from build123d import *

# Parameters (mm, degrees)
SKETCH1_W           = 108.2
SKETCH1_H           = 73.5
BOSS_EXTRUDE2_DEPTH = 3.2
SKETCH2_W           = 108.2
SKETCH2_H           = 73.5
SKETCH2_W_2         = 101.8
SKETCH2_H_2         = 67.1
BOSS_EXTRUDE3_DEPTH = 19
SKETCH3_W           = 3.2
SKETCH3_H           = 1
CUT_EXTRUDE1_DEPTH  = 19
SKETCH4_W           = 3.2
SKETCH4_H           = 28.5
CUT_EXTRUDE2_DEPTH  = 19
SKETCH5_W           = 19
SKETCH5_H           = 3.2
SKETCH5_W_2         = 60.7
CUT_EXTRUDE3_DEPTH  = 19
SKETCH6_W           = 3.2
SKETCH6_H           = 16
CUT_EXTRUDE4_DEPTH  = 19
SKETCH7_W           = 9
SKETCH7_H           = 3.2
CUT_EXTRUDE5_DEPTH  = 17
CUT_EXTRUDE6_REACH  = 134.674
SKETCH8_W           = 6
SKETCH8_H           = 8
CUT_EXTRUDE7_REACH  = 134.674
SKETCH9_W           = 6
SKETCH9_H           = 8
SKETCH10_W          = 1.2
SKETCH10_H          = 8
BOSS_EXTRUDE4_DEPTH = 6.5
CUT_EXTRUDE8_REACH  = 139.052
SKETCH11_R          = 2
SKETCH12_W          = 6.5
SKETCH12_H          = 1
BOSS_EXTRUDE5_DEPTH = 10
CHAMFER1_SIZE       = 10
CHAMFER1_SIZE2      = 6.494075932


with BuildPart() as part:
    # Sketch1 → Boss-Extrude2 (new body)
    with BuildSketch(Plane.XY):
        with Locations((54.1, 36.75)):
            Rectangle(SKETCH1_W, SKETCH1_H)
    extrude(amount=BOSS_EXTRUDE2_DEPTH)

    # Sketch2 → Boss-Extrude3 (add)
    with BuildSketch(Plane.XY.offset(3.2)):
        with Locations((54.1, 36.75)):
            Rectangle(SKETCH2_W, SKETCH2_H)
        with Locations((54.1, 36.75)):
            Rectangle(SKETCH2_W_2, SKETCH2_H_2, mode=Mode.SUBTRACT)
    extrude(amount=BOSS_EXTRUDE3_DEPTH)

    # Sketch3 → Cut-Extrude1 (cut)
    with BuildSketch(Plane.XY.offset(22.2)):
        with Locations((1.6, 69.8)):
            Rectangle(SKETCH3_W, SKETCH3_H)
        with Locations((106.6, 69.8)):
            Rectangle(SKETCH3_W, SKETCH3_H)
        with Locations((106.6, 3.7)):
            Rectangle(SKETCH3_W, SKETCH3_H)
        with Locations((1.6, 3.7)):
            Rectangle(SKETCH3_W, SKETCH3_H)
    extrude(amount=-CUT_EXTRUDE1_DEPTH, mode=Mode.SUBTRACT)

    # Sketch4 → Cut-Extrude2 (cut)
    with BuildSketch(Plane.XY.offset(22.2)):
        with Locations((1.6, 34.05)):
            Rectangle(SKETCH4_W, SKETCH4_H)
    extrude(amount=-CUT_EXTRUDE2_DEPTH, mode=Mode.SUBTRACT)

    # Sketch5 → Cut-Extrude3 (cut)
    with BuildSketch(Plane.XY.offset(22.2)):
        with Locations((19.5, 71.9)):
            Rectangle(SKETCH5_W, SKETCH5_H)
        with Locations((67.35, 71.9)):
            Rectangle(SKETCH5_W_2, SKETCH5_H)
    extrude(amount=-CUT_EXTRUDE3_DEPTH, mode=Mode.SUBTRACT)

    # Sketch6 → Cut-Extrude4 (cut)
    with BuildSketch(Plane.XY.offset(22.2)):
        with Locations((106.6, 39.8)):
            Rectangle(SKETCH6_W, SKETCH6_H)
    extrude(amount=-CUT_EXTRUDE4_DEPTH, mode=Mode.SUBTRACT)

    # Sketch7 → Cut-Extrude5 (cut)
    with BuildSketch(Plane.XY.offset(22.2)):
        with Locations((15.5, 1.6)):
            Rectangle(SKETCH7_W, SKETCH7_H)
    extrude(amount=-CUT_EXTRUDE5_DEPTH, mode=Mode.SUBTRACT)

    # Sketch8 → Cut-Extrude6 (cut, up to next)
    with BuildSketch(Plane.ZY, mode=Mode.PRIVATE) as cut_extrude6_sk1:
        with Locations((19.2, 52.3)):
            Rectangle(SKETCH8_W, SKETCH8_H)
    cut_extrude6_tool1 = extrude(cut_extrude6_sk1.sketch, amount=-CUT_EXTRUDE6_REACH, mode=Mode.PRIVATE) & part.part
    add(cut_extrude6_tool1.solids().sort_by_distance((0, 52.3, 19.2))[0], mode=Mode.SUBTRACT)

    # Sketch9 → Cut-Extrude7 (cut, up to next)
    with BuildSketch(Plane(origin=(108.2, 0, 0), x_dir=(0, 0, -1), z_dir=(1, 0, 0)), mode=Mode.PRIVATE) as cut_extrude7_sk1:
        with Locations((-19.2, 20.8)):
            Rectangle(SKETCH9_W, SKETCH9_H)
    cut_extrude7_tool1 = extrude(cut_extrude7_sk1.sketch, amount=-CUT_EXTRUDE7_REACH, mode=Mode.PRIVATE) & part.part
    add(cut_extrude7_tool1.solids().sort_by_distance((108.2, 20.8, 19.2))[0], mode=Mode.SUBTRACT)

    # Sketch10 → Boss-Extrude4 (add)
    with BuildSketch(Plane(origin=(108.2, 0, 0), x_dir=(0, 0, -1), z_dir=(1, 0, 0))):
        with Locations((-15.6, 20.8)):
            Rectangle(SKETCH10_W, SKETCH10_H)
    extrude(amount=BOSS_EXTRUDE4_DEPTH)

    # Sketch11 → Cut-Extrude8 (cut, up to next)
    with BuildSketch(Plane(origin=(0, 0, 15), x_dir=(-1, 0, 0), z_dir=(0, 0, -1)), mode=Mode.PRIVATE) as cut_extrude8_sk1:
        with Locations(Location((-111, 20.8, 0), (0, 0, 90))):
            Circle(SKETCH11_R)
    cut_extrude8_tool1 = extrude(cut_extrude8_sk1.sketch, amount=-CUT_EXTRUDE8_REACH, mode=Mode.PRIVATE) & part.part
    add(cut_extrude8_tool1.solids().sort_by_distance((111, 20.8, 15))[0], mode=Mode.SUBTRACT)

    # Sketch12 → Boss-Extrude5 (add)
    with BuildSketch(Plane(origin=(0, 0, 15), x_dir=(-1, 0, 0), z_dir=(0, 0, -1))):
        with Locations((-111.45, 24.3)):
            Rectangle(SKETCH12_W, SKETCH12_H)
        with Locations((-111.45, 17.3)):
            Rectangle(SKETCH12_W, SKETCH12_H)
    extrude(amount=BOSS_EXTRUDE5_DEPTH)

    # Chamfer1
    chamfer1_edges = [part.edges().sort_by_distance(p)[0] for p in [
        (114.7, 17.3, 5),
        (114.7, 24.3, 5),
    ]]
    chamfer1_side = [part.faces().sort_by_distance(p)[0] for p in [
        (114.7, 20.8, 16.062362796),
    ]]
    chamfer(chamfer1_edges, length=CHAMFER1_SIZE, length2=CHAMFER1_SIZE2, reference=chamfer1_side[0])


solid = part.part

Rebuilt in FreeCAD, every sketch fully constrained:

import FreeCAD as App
import Part
import Sketcher
from FreeCAD import Vector


def edges_at(feature, points):
    """Names of the edges that pass closest to the given points."""
    edges = feature.Shape.Edges
    near = lambda p: min(range(len(edges)), key=lambda i: edges[i].distToShape(Part.Vertex(*p))[0])
    return sorted({f"Edge{near(p) + 1}" for p in points})

doc = App.newDocument("Part")
body = doc.addObject("PartDesign::Body", "Body")

# Sketch on XY plane
sketch1 = doc.addObject("Sketcher::SketchObject", "Sketch")
body.addObject(sketch1)
sketch1.AttachmentSupport = (doc.XY_Plane, [""])
sketch1.MapMode = "FlatFace"
sketch1.addGeometry(Part.LineSegment(Vector(0, 73.5, 0), Vector(0, 0, 0)), False)
sketch1.addGeometry(Part.LineSegment(Vector(0, 0, 0), Vector(108.2, 0, 0)), False)
sketch1.addGeometry(Part.LineSegment(Vector(108.2, 0, 0), Vector(108.2, 73.5, 0)), False)
sketch1.addGeometry(Part.LineSegment(Vector(108.2, 73.5, 0), Vector(0, 73.5, 0)), False)
sketch1.addConstraint(Sketcher.Constraint("Coincident", 0, 2, 1, 1))
sketch1.addConstraint(Sketcher.Constraint("Coincident", 1, 2, 2, 1))
sketch1.addConstraint(Sketcher.Constraint("Coincident", 2, 2, 3, 1))
sketch1.addConstraint(Sketcher.Constraint("Coincident", 3, 2, 0, 1))
sketch1.addConstraint(Sketcher.Constraint("Vertical", 0))
sketch1.addConstraint(Sketcher.Constraint("Horizontal", 1))
sketch1.addConstraint(Sketcher.Constraint("Vertical", 2))
sketch1.addConstraint(Sketcher.Constraint("Horizontal", 3))
sketch1.addConstraint(Sketcher.Constraint("Coincident", 0, 2, -1, 1))
sketch1.addConstraint(Sketcher.Constraint("DistanceX", 1, 1, 1, 2, 108.2))
sketch1.addConstraint(Sketcher.Constraint("DistanceY", 0, 2, 0, 1, 73.5))
pad1 = doc.addObject("PartDesign::Pad", "Pad")
body.addObject(pad1)
pad1.Profile = sketch1
pad1.Length = 3.2

# Sketch on XY plane
sketch2 = doc.addObject("Sketcher::SketchObject", "Sketch001")
body.addObject(sketch2)
sketch2.AttachmentSupport = (doc.XY_Plane, [""])
sketch2.MapMode = "FlatFace"
sketch2.AttachmentOffset = App.Placement(Vector(0, 0, 3.2), App.Rotation())
sketch2.addGeometry(Part.LineSegment(Vector(0, 73.5, 0), Vector(0, 0, 0)), False)
sketch2.addGeometry(Part.LineSegment(Vector(0, 0, 0), Vector(108.2, 0, 0)), False)
sketch2.addGeometry(Part.LineSegment(Vector(108.2, 0, 0), Vector(108.2, 73.5, 0)), False)
sketch2.addGeometry(Part.LineSegment(Vector(108.2, 73.5, 0), Vector(0, 73.5, 0)), False)
sketch2.addGeometry(Part.LineSegment(Vector(105, 3.2, 0), Vector(3.2, 3.2, 0)), False)
sketch2.addGeometry(Part.LineSegment(Vector(3.2, 3.2, 0), Vector(3.2, 70.3, 0)), False)
sketch2.addGeometry(Part.LineSegment(Vector(3.2, 70.3, 0), Vector(105, 70.3, 0)), False)
sketch2.addGeometry(Part.LineSegment(Vector(105, 70.3, 0), Vector(105, 3.2, 0)), False)
sketch2.addConstraint(Sketcher.Constraint("Coincident", 0, 2, 1, 1))
sketch2.addConstraint(Sketcher.Constraint("Coincident", 1, 2, 2, 1))
sketch2.addConstraint(Sketcher.Constraint("Coincident", 2, 2, 3, 1))
sketch2.addConstraint(Sketcher.Constraint("Coincident", 3, 2, 0, 1))
sketch2.addConstraint(Sketcher.Constraint("Coincident", 4, 2, 5, 1))
sketch2.addConstraint(Sketcher.Constraint("Coincident", 5, 2, 6, 1))
sketch2.addConstraint(Sketcher.Constraint("Coincident", 6, 2, 7, 1))
sketch2.addConstraint(Sketcher.Constraint("Coincident", 7, 2, 4, 1))
sketch2.addConstraint(Sketcher.Constraint("Vertical", 0))
sketch2.addConstraint(Sketcher.Constraint("Horizontal", 1))
sketch2.addConstraint(Sketcher.Constraint("Vertical", 2))
sketch2.addConstraint(Sketcher.Constraint("Horizontal", 3))
sketch2.addConstraint(Sketcher.Constraint("Horizontal", 4))
sketch2.addConstraint(Sketcher.Constraint("Vertical", 5))
sketch2.addConstraint(Sketcher.Constraint("Horizontal", 6))
sketch2.addConstraint(Sketcher.Constraint("Vertical", 7))
sketch2.addConstraint(Sketcher.Constraint("Coincident", 0, 2, -1, 1))
sketch2.addConstraint(Sketcher.Constraint("DistanceX", 1, 1, 1, 2, 108.2))
sketch2.addConstraint(Sketcher.Constraint("DistanceX", 4, 2, 4, 1, 101.8))
sketch2.addConstraint(Sketcher.Constraint("DistanceY", 0, 2, 0, 1, 73.5))
sketch2.addConstraint(Sketcher.Constraint("DistanceY", 5, 1, 5, 2, 67.1))
sketch2.addConstraint(Sketcher.Constraint("DistanceX", -1, 1, 6, 2, 105.0))
sketch2.addConstraint(Sketcher.Constraint("DistanceY", -1, 1, 4, 2, 3.2))
pad2 = doc.addObject("PartDesign::Pad", "Pad001")
body.addObject(pad2)
pad2.Profile = sketch2
pad2.Length = 19

# Sketch on XY plane
sketch3 = doc.addObject("Sketcher::SketchObject", "Sketch002")
body.addObject(sketch3)
sketch3.AttachmentSupport = (doc.XY_Plane, [""])
sketch3.MapMode = "FlatFace"
sketch3.AttachmentOffset = App.Placement(Vector(0, 0, 22.2), App.Rotation())
sketch3.addGeometry(Part.LineSegment(Vector(0, 70.3, 0), Vector(0, 69.3, 0)), False)
sketch3.addGeometry(Part.LineSegment(Vector(0, 69.3, 0), Vector(3.2, 69.3, 0)), False)
sketch3.addGeometry(Part.LineSegment(Vector(3.2, 69.3, 0), Vector(3.2, 70.3, 0)), False)
sketch3.addGeometry(Part.LineSegment(Vector(3.2, 70.3, 0), Vector(0, 70.3, 0)), False)
sketch3.addGeometry(Part.LineSegment(Vector(105, 70.3, 0), Vector(105, 69.3, 0)), False)
sketch3.addGeometry(Part.LineSegment(Vector(105, 69.3, 0), Vector(108.2, 69.3, 0)), False)
sketch3.addGeometry(Part.LineSegment(Vector(108.2, 69.3, 0), Vector(108.2, 70.3, 0)), False)
sketch3.addGeometry(Part.LineSegment(Vector(108.2, 70.3, 0), Vector(105, 70.3, 0)), False)
sketch3.addGeometry(Part.LineSegment(Vector(105, 4.2, 0), Vector(105, 3.2, 0)), False)
sketch3.addGeometry(Part.LineSegment(Vector(105, 3.2, 0), Vector(108.2, 3.2, 0)), False)
sketch3.addGeometry(Part.LineSegment(Vector(108.2, 3.2, 0), Vector(108.2, 4.2, 0)), False)
sketch3.addGeometry(Part.LineSegment(Vector(108.2, 4.2, 0), Vector(105, 4.2, 0)), False)
sketch3.addGeometry(Part.LineSegment(Vector(0, 4.2, 0), Vector(0, 3.2, 0)), False)
sketch3.addGeometry(Part.LineSegment(Vector(0, 3.2, 0), Vector(3.2, 3.2, 0)), False)
sketch3.addGeometry(Part.LineSegment(Vector(3.2, 3.2, 0), Vector(3.2, 4.2, 0)), False)
sketch3.addGeometry(Part.LineSegment(Vector(3.2, 4.2, 0), Vector(0, 4.2, 0)), False)
sketch3.addConstraint(Sketcher.Constraint("Coincident", 0, 2, 1, 1))
sketch3.addConstraint(Sketcher.Constraint("Coincident", 1, 2, 2, 1))
sketch3.addConstraint(Sketcher.Constraint("Coincident", 2, 2, 3, 1))
sketch3.addConstraint(Sketcher.Constraint("Coincident", 3, 2, 0, 1))
sketch3.addConstraint(Sketcher.Constraint("Coincident", 4, 2, 5, 1))
sketch3.addConstraint(Sketcher.Constraint("Coincident", 5, 2, 6, 1))
sketch3.addConstraint(Sketcher.Constraint("Coincident", 6, 2, 7, 1))
sketch3.addConstraint(Sketcher.Constraint("Coincident", 7, 2, 4, 1))
sketch3.addConstraint(Sketcher.Constraint("Coincident", 8, 2, 9, 1))
sketch3.addConstraint(Sketcher.Constraint("Coincident", 9, 2, 10, 1))
sketch3.addConstraint(Sketcher.Constraint("Coincident", 10, 2, 11, 1))
sketch3.addConstraint(Sketcher.Constraint("Coincident", 11, 2, 8, 1))
sketch3.addConstraint(Sketcher.Constraint("Coincident", 12, 2, 13, 1))
sketch3.addConstraint(Sketcher.Constraint("Coincident", 13, 2, 14, 1))
sketch3.addConstraint(Sketcher.Constraint("Coincident", 14, 2, 15, 1))
sketch3.addConstraint(Sketcher.Constraint("Coincident", 15, 2, 12, 1))
sketch3.addConstraint(Sketcher.Constraint("Vertical", 0))
sketch3.addConstraint(Sketcher.Constraint("Horizontal", 1))
sketch3.addConstraint(Sketcher.Constraint("Vertical", 2))
sketch3.addConstraint(Sketcher.Constraint("Horizontal", 3))
sketch3.addConstraint(Sketcher.Constraint("Vertical", 4))
sketch3.addConstraint(Sketcher.Constraint("Horizontal", 5))
sketch3.addConstraint(Sketcher.Constraint("Vertical", 6))
sketch3.addConstraint(Sketcher.Constraint("Horizontal", 7))
sketch3.addConstraint(Sketcher.Constraint("Vertical", 8))
sketch3.addConstraint(Sketcher.Constraint("Horizontal", 9))
sketch3.addConstraint(Sketcher.Constraint("Vertical", 10))
sketch3.addConstraint(Sketcher.Constraint("Horizontal", 11))
sketch3.addConstraint(Sketcher.Constraint("Vertical", 12))
sketch3.addConstraint(Sketcher.Constraint("Horizontal", 13))
sketch3.addConstraint(Sketcher.Constraint("Vertical", 14))
sketch3.addConstraint(Sketcher.Constraint("Horizontal", 15))
sketch3.addConstraint(Sketcher.Constraint("PointOnObject", 0, 2, -2))
sketch3.addConstraint(Sketcher.Constraint("PointOnObject", 12, 2, -2))
sketch3.addConstraint(Sketcher.Constraint("Horizontal", 1, 2, 4, 2))
sketch3.addConstraint(Sketcher.Constraint("Horizontal", 3, 2, 6, 2))
sketch3.addConstraint(Sketcher.Constraint("Horizontal", 9, 2, 12, 2))
sketch3.addConstraint(Sketcher.Constraint("Horizontal", 11, 2, 14, 2))
sketch3.addConstraint(Sketcher.Constraint("Vertical", 7, 2, 8, 2))
sketch3.addConstraint(Sketcher.Constraint("Vertical", 6, 2, 9, 2))
sketch3.addConstraint(Sketcher.Constraint("Vertical", 2, 2, 13, 2))
sketch3.addConstraint(Sketcher.Constraint("Equal", 3, 5))
sketch3.addConstraint(Sketcher.Constraint("Equal", 6, 8))
sketch3.addConstraint(Sketcher.Constraint("DistanceY", 0, 2, 0, 1, 1.0))
sketch3.addConstraint(Sketcher.Constraint("DistanceX", 1, 1, 1, 2, 3.2))
sketch3.addConstraint(Sketcher.Constraint("DistanceX", -1, 1, 4, 2, 105.0))
sketch3.addConstraint(Sketcher.Constraint("DistanceY", -1, 1, 0, 2, 69.3))
sketch3.addConstraint(Sketcher.Constraint("DistanceY", -1, 1, 8, 2, 3.2))
pocket1 = doc.addObject("PartDesign::Pocket", "Pocket")
body.addObject(pocket1)
pocket1.Profile = sketch3
pocket1.Length = 19

# Sketch on XY plane
sketch4 = doc.addObject("Sketcher::SketchObject", "Sketch003")
body.addObject(sketch4)
sketch4.AttachmentSupport = (doc.XY_Plane, [""])
sketch4.MapMode = "FlatFace"
sketch4.AttachmentOffset = App.Placement(Vector(0, 0, 22.2), App.Rotation())
sketch4.addGeometry(Part.LineSegment(Vector(0, 48.3, 0), Vector(0, 19.8, 0)), False)
sketch4.addGeometry(Part.LineSegment(Vector(0, 19.8, 0), Vector(3.2, 19.8, 0)), False)
sketch4.addGeometry(Part.LineSegment(Vector(3.2, 19.8, 0), Vector(3.2, 48.3, 0)), False)
sketch4.addGeometry(Part.LineSegment(Vector(3.2, 48.3, 0), Vector(0, 48.3, 0)), False)
sketch4.addConstraint(Sketcher.Constraint("Coincident", 0, 2, 1, 1))
sketch4.addConstraint(Sketcher.Constraint("Coincident", 1, 2, 2, 1))
sketch4.addConstraint(Sketcher.Constraint("Coincident", 2, 2, 3, 1))
sketch4.addConstraint(Sketcher.Constraint("Coincident", 3, 2, 0, 1))
sketch4.addConstraint(Sketcher.Constraint("Vertical", 0))
sketch4.addConstraint(Sketcher.Constraint("Horizontal", 1))
sketch4.addConstraint(Sketcher.Constraint("Vertical", 2))
sketch4.addConstraint(Sketcher.Constraint("Horizontal", 3))
sketch4.addConstraint(Sketcher.Constraint("PointOnObject", 0, 2, -2))
sketch4.addConstraint(Sketcher.Constraint("DistanceX", 1, 1, 1, 2, 3.2))
sketch4.addConstraint(Sketcher.Constraint("DistanceY", 0, 2, 0, 1, 28.5))
sketch4.addConstraint(Sketcher.Constraint("DistanceY", -1, 1, 0, 2, 19.8))
pocket2 = doc.addObject("PartDesign::Pocket", "Pocket001")
body.addObject(pocket2)
pocket2.Profile = sketch4
pocket2.Length = 19

# Sketch on XY plane
sketch5 = doc.addObject("Sketcher::SketchObject", "Sketch004")
body.addObject(sketch5)
sketch5.AttachmentSupport = (doc.XY_Plane, [""])
sketch5.MapMode = "FlatFace"
sketch5.AttachmentOffset = App.Placement(Vector(0, 0, 22.2), App.Rotation())
sketch5.addGeometry(Part.LineSegment(Vector(10, 73.5, 0), Vector(10, 70.3, 0)), False)
sketch5.addGeometry(Part.LineSegment(Vector(10, 70.3, 0), Vector(29, 70.3, 0)), False)
sketch5.addGeometry(Part.LineSegment(Vector(29, 70.3, 0), Vector(29, 73.5, 0)), False)
sketch5.addGeometry(Part.LineSegment(Vector(29, 73.5, 0), Vector(10, 73.5, 0)), False)
sketch5.addGeometry(Part.LineSegment(Vector(37, 73.5, 0), Vector(37, 70.3, 0)), False)
sketch5.addGeometry(Part.LineSegment(Vector(37, 70.3, 0), Vector(97.7, 70.3, 0)), False)
sketch5.addGeometry(Part.LineSegment(Vector(97.7, 70.3, 0), Vector(97.7, 73.5, 0)), False)
sketch5.addGeometry(Part.LineSegment(Vector(97.7, 73.5, 0), Vector(37, 73.5, 0)), False)
sketch5.addConstraint(Sketcher.Constraint("Coincident", 0, 2, 1, 1))
sketch5.addConstraint(Sketcher.Constraint("Coincident", 1, 2, 2, 1))
sketch5.addConstraint(Sketcher.Constraint("Coincident", 2, 2, 3, 1))
sketch5.addConstraint(Sketcher.Constraint("Coincident", 3, 2, 0, 1))
sketch5.addConstraint(Sketcher.Constraint("Coincident", 4, 2, 5, 1))
sketch5.addConstraint(Sketcher.Constraint("Coincident", 5, 2, 6, 1))
sketch5.addConstraint(Sketcher.Constraint("Coincident", 6, 2, 7, 1))
sketch5.addConstraint(Sketcher.Constraint("Coincident", 7, 2, 4, 1))
sketch5.addConstraint(Sketcher.Constraint("Vertical", 0))
sketch5.addConstraint(Sketcher.Constraint("Horizontal", 1))
sketch5.addConstraint(Sketcher.Constraint("Vertical", 2))
sketch5.addConstraint(Sketcher.Constraint("Horizontal", 3))
sketch5.addConstraint(Sketcher.Constraint("Vertical", 4))
sketch5.addConstraint(Sketcher.Constraint("Horizontal", 5))
sketch5.addConstraint(Sketcher.Constraint("Vertical", 6))
sketch5.addConstraint(Sketcher.Constraint("Horizontal", 7))
sketch5.addConstraint(Sketcher.Constraint("Horizontal", 1, 2, 4, 2))
sketch5.addConstraint(Sketcher.Constraint("Horizontal", 3, 2, 6, 2))
sketch5.addConstraint(Sketcher.Constraint("DistanceX", 1, 1, 1, 2, 19.0))
sketch5.addConstraint(Sketcher.Constraint("DistanceX", 5, 1, 5, 2, 60.7))
sketch5.addConstraint(Sketcher.Constraint("DistanceY", 0, 2, 0, 1, 3.2))
sketch5.addConstraint(Sketcher.Constraint("DistanceX", -1, 1, 0, 2, 10.0))
sketch5.addConstraint(Sketcher.Constraint("DistanceX", -1, 1, 4, 2, 37.0))
sketch5.addConstraint(Sketcher.Constraint("DistanceY", -1, 1, 0, 2, 70.3))
pocket3 = doc.addObject("PartDesign::Pocket", "Pocket002")
body.addObject(pocket3)
pocket3.Profile = sketch5
pocket3.Length = 19

# Sketch on XY plane
sketch6 = doc.addObject("Sketcher::SketchObject", "Sketch005")
body.addObject(sketch6)
sketch6.AttachmentSupport = (doc.XY_Plane, [""])
sketch6.MapMode = "FlatFace"
sketch6.AttachmentOffset = App.Placement(Vector(0, 0, 22.2), App.Rotation())
sketch6.addGeometry(Part.LineSegment(Vector(105, 47.8, 0), Vector(105, 31.8, 0)), False)
sketch6.addGeometry(Part.LineSegment(Vector(105, 31.8, 0), Vector(108.2, 31.8, 0)), False)
sketch6.addGeometry(Part.LineSegment(Vector(108.2, 31.8, 0), Vector(108.2, 47.8, 0)), False)
sketch6.addGeometry(Part.LineSegment(Vector(108.2, 47.8, 0), Vector(105, 47.8, 0)), False)
sketch6.addConstraint(Sketcher.Constraint("Coincident", 0, 2, 1, 1))
sketch6.addConstraint(Sketcher.Constraint("Coincident", 1, 2, 2, 1))
sketch6.addConstraint(Sketcher.Constraint("Coincident", 2, 2, 3, 1))
sketch6.addConstraint(Sketcher.Constraint("Coincident", 3, 2, 0, 1))
sketch6.addConstraint(Sketcher.Constraint("Vertical", 0))
sketch6.addConstraint(Sketcher.Constraint("Horizontal", 1))
sketch6.addConstraint(Sketcher.Constraint("Vertical", 2))
sketch6.addConstraint(Sketcher.Constraint("Horizontal", 3))
sketch6.addConstraint(Sketcher.Constraint("DistanceY", 0, 2, 0, 1, 16.0))
sketch6.addConstraint(Sketcher.Constraint("DistanceX", 1, 1, 1, 2, 3.2))
sketch6.addConstraint(Sketcher.Constraint("DistanceX", -1, 1, 0, 2, 105.0))
sketch6.addConstraint(Sketcher.Constraint("DistanceY", -1, 1, 0, 2, 31.8))
pocket4 = doc.addObject("PartDesign::Pocket", "Pocket003")
body.addObject(pocket4)
pocket4.Profile = sketch6
pocket4.Length = 19

# Sketch on XY plane
sketch7 = doc.addObject("Sketcher::SketchObject", "Sketch006")
body.addObject(sketch7)
sketch7.AttachmentSupport = (doc.XY_Plane, [""])
sketch7.MapMode = "FlatFace"
sketch7.AttachmentOffset = App.Placement(Vector(0, 0, 22.2), App.Rotation())
sketch7.addGeometry(Part.LineSegment(Vector(11, 3.2, 0), Vector(11, 0, 0)), False)
sketch7.addGeometry(Part.LineSegment(Vector(11, 0, 0), Vector(20, 0, 0)), False)
sketch7.addGeometry(Part.LineSegment(Vector(20, 0, 0), Vector(20, 3.2, 0)), False)
sketch7.addGeometry(Part.LineSegment(Vector(20, 3.2, 0), Vector(11, 3.2, 0)), False)
sketch7.addConstraint(Sketcher.Constraint("Coincident", 0, 2, 1, 1))
sketch7.addConstraint(Sketcher.Constraint("Coincident", 1, 2, 2, 1))
sketch7.addConstraint(Sketcher.Constraint("Coincident", 2, 2, 3, 1))
sketch7.addConstraint(Sketcher.Constraint("Coincident", 3, 2, 0, 1))
sketch7.addConstraint(Sketcher.Constraint("Vertical", 0))
sketch7.addConstraint(Sketcher.Constraint("Horizontal", 1))
sketch7.addConstraint(Sketcher.Constraint("Vertical", 2))
sketch7.addConstraint(Sketcher.Constraint("Horizontal", 3))
sketch7.addConstraint(Sketcher.Constraint("PointOnObject", 0, 2, -1))
sketch7.addConstraint(Sketcher.Constraint("DistanceX", 1, 1, 1, 2, 9.0))
sketch7.addConstraint(Sketcher.Constraint("DistanceY", 0, 2, 0, 1, 3.2))
sketch7.addConstraint(Sketcher.Constraint("DistanceX", -1, 1, 0, 2, 11.0))
pocket5 = doc.addObject("PartDesign::Pocket", "Pocket004")
body.addObject(pocket5)
pocket5.Profile = sketch7
pocket5.Length = 17

# Sketch on YZ plane
sketch8 = doc.addObject("Sketcher::SketchObject", "Sketch007")
body.addObject(sketch8)
sketch8.AttachmentSupport = (doc.YZ_Plane, [""])
sketch8.MapMode = "FlatFace"
sketch8.addGeometry(Part.LineSegment(Vector(56.3, 16.2, 0), Vector(48.3, 16.2, 0)), False)
sketch8.addGeometry(Part.LineSegment(Vector(48.3, 16.2, 0), Vector(48.3, 22.2, 0)), False)
sketch8.addGeometry(Part.LineSegment(Vector(48.3, 22.2, 0), Vector(56.3, 22.2, 0)), False)
sketch8.addGeometry(Part.LineSegment(Vector(56.3, 22.2, 0), Vector(56.3, 16.2, 0)), False)
sketch8.addConstraint(Sketcher.Constraint("Coincident", 0, 2, 1, 1))
sketch8.addConstraint(Sketcher.Constraint("Coincident", 1, 2, 2, 1))
sketch8.addConstraint(Sketcher.Constraint("Coincident", 2, 2, 3, 1))
sketch8.addConstraint(Sketcher.Constraint("Coincident", 3, 2, 0, 1))
sketch8.addConstraint(Sketcher.Constraint("Horizontal", 0))
sketch8.addConstraint(Sketcher.Constraint("Vertical", 1))
sketch8.addConstraint(Sketcher.Constraint("Horizontal", 2))
sketch8.addConstraint(Sketcher.Constraint("Vertical", 3))
sketch8.addConstraint(Sketcher.Constraint("DistanceX", 0, 2, 0, 1, 8.0))
sketch8.addConstraint(Sketcher.Constraint("DistanceY", 1, 1, 1, 2, 6.0))
sketch8.addConstraint(Sketcher.Constraint("DistanceX", -1, 1, 0, 2, 48.3))
sketch8.addConstraint(Sketcher.Constraint("DistanceY", -1, 1, 0, 2, 16.2))
pocket6 = doc.addObject("PartDesign::Pocket", "Pocket005")
body.addObject(pocket6)
pocket6.Profile = sketch8
pocket6.Type = "UpToFirst"
pocket6.Reversed = True

# Sketch on YZ plane
sketch9 = doc.addObject("Sketcher::SketchObject", "Sketch008")
body.addObject(sketch9)
sketch9.AttachmentSupport = (doc.YZ_Plane, [""])
sketch9.MapMode = "FlatFace"
sketch9.AttachmentOffset = App.Placement(Vector(0, 0, 108.2), App.Rotation())
sketch9.addGeometry(Part.LineSegment(Vector(24.8, 22.2, 0), Vector(16.8, 22.2, 0)), False)
sketch9.addGeometry(Part.LineSegment(Vector(16.8, 22.2, 0), Vector(16.8, 16.2, 0)), False)
sketch9.addGeometry(Part.LineSegment(Vector(16.8, 16.2, 0), Vector(24.8, 16.2, 0)), False)
sketch9.addGeometry(Part.LineSegment(Vector(24.8, 16.2, 0), Vector(24.8, 22.2, 0)), False)
sketch9.addConstraint(Sketcher.Constraint("Coincident", 0, 2, 1, 1))
sketch9.addConstraint(Sketcher.Constraint("Coincident", 1, 2, 2, 1))
sketch9.addConstraint(Sketcher.Constraint("Coincident", 2, 2, 3, 1))
sketch9.addConstraint(Sketcher.Constraint("Coincident", 3, 2, 0, 1))
sketch9.addConstraint(Sketcher.Constraint("Horizontal", 0))
sketch9.addConstraint(Sketcher.Constraint("Vertical", 1))
sketch9.addConstraint(Sketcher.Constraint("Horizontal", 2))
sketch9.addConstraint(Sketcher.Constraint("Vertical", 3))
sketch9.addConstraint(Sketcher.Constraint("DistanceX", 0, 2, 0, 1, 8.0))
sketch9.addConstraint(Sketcher.Constraint("DistanceY", 1, 2, 1, 1, 6.0))
sketch9.addConstraint(Sketcher.Constraint("DistanceX", -1, 1, 0, 2, 16.8))
sketch9.addConstraint(Sketcher.Constraint("DistanceY", -1, 1, 0, 2, 22.2))
pocket7 = doc.addObject("PartDesign::Pocket", "Pocket006")
body.addObject(pocket7)
pocket7.Profile = sketch9
pocket7.Type = "UpToFirst"

# Sketch on YZ plane
sketch10 = doc.addObject("Sketcher::SketchObject", "Sketch009")
body.addObject(sketch10)
sketch10.AttachmentSupport = (doc.YZ_Plane, [""])
sketch10.MapMode = "FlatFace"
sketch10.AttachmentOffset = App.Placement(Vector(0, 0, 108.2), App.Rotation())
sketch10.addGeometry(Part.LineSegment(Vector(24.8, 16.2, 0), Vector(16.8, 16.2, 0)), False)
sketch10.addGeometry(Part.LineSegment(Vector(16.8, 16.2, 0), Vector(16.8, 15, 0)), False)
sketch10.addGeometry(Part.LineSegment(Vector(16.8, 15, 0), Vector(24.8, 15, 0)), False)
sketch10.addGeometry(Part.LineSegment(Vector(24.8, 15, 0), Vector(24.8, 16.2, 0)), False)
sketch10.addConstraint(Sketcher.Constraint("Coincident", 0, 2, 1, 1))
sketch10.addConstraint(Sketcher.Constraint("Coincident", 1, 2, 2, 1))
sketch10.addConstraint(Sketcher.Constraint("Coincident", 2, 2, 3, 1))
sketch10.addConstraint(Sketcher.Constraint("Coincident", 3, 2, 0, 1))
sketch10.addConstraint(Sketcher.Constraint("Horizontal", 0))
sketch10.addConstraint(Sketcher.Constraint("Vertical", 1))
sketch10.addConstraint(Sketcher.Constraint("Horizontal", 2))
sketch10.addConstraint(Sketcher.Constraint("Vertical", 3))
sketch10.addConstraint(Sketcher.Constraint("DistanceX", 0, 2, 0, 1, 8.0))
sketch10.addConstraint(Sketcher.Constraint("DistanceY", 1, 2, 1, 1, 1.2))
sketch10.addConstraint(Sketcher.Constraint("DistanceY", -1, 1, 1, 2, 15.0))
sketch10.addConstraint(Sketcher.Constraint("DistanceX", -1, 1, 0, 2, 16.8))
pad3 = doc.addObject("PartDesign::Pad", "Pad002")
body.addObject(pad3)
pad3.Profile = sketch10
pad3.Length = 6.5

# Sketch on XY plane
sketch11 = doc.addObject("Sketcher::SketchObject", "Sketch010")
body.addObject(sketch11)
sketch11.AttachmentSupport = (doc.XY_Plane, [""])
sketch11.MapMode = "FlatFace"
sketch11.AttachmentOffset = App.Placement(Vector(0, 0, 15), App.Rotation())
sketch11.addGeometry(Part.Circle(Vector(111, 20.8, 0), Vector(0, 0, 1), 2), False)
sketch11.addConstraint(Sketcher.Constraint("Diameter", 0, 4.0))
sketch11.addConstraint(Sketcher.Constraint("DistanceX", -1, 1, 0, 3, 111.0))
sketch11.addConstraint(Sketcher.Constraint("DistanceY", -1, 1, 0, 3, 20.8))
pocket8 = doc.addObject("PartDesign::Pocket", "Pocket007")
body.addObject(pocket8)
pocket8.Profile = sketch11
pocket8.Type = "UpToFirst"
pocket8.Reversed = True

# Sketch on XY plane
sketch12 = doc.addObject("Sketcher::SketchObject", "Sketch011")
body.addObject(sketch12)
sketch12.AttachmentSupport = (doc.XY_Plane, [""])
sketch12.MapMode = "FlatFace"
sketch12.AttachmentOffset = App.Placement(Vector(0, 0, 15), App.Rotation())
sketch12.addGeometry(Part.LineSegment(Vector(114.7, 24.8, 0), Vector(114.7, 23.8, 0)), False)
sketch12.addGeometry(Part.LineSegment(Vector(114.7, 23.8, 0), Vector(108.2, 23.8, 0)), False)
sketch12.addGeometry(Part.LineSegment(Vector(108.2, 23.8, 0), Vector(108.2, 24.8, 0)), False)
sketch12.addGeometry(Part.LineSegment(Vector(108.2, 24.8, 0), Vector(114.7, 24.8, 0)), False)
sketch12.addGeometry(Part.LineSegment(Vector(114.7, 17.8, 0), Vector(114.7, 16.8, 0)), False)
sketch12.addGeometry(Part.LineSegment(Vector(114.7, 16.8, 0), Vector(108.2, 16.8, 0)), False)
sketch12.addGeometry(Part.LineSegment(Vector(108.2, 16.8, 0), Vector(108.2, 17.8, 0)), False)
sketch12.addGeometry(Part.LineSegment(Vector(108.2, 17.8, 0), Vector(114.7, 17.8, 0)), False)
sketch12.addConstraint(Sketcher.Constraint("Coincident", 0, 2, 1, 1))
sketch12.addConstraint(Sketcher.Constraint("Coincident", 1, 2, 2, 1))
sketch12.addConstraint(Sketcher.Constraint("Coincident", 2, 2, 3, 1))
sketch12.addConstraint(Sketcher.Constraint("Coincident", 3, 2, 0, 1))
sketch12.addConstraint(Sketcher.Constraint("Coincident", 4, 2, 5, 1))
sketch12.addConstraint(Sketcher.Constraint("Coincident", 5, 2, 6, 1))
sketch12.addConstraint(Sketcher.Constraint("Coincident", 6, 2, 7, 1))
sketch12.addConstraint(Sketcher.Constraint("Coincident", 7, 2, 4, 1))
sketch12.addConstraint(Sketcher.Constraint("Vertical", 0))
sketch12.addConstraint(Sketcher.Constraint("Horizontal", 1))
sketch12.addConstraint(Sketcher.Constraint("Vertical", 2))
sketch12.addConstraint(Sketcher.Constraint("Horizontal", 3))
sketch12.addConstraint(Sketcher.Constraint("Vertical", 4))
sketch12.addConstraint(Sketcher.Constraint("Horizontal", 5))
sketch12.addConstraint(Sketcher.Constraint("Vertical", 6))
sketch12.addConstraint(Sketcher.Constraint("Horizontal", 7))
sketch12.addConstraint(Sketcher.Constraint("Vertical", 3, 2, 4, 2))
sketch12.addConstraint(Sketcher.Constraint("Vertical", 2, 2, 5, 2))
sketch12.addConstraint(Sketcher.Constraint("Equal", 2, 4))
sketch12.addConstraint(Sketcher.Constraint("DistanceY", 0, 2, 0, 1, 1.0))
sketch12.addConstraint(Sketcher.Constraint("DistanceX", 1, 2, 1, 1, 6.5))
sketch12.addConstraint(Sketcher.Constraint("DistanceY", 4, 2, 0, 2, 7.0))
sketch12.addConstraint(Sketcher.Constraint("DistanceX", -1, 1, 0, 2, 114.7))
sketch12.addConstraint(Sketcher.Constraint("DistanceY", -1, 1, 0, 2, 23.8))
pad4 = doc.addObject("PartDesign::Pad", "Pad003")
body.addObject(pad4)
pad4.Profile = sketch12
pad4.Length = 10
pad4.Reversed = True
doc.recompute()

chamfer = doc.addObject("PartDesign::Chamfer", "Chamfer")
body.addObject(chamfer)
chamfer.Base = (pad4, edges_at(pad4, [(114.7, 17.3, 5), (114.7, 24.3, 5)]))
chamfer.ChamferType = "Two distances"
chamfer.Size = 10
chamfer.Size2 = 6.494076
chamfer.FlipDirection = True

doc.recompute()
